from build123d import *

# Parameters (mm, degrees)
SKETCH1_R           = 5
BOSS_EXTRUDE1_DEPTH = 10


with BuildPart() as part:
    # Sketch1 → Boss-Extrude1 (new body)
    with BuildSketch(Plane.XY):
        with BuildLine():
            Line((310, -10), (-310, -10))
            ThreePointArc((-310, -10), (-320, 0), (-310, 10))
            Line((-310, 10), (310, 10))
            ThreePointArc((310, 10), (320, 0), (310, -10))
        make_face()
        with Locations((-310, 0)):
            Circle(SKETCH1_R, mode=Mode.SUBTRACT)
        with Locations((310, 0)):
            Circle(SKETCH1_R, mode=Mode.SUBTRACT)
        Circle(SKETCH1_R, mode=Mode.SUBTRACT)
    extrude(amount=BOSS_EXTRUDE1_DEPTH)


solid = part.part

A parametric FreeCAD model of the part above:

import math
import FreeCAD as App
import Part
import Sketcher

V = App.Vector

doc = App.newDocument("Part")
body = doc.addObject("PartDesign::Body", "Body")

# Sketch on XY plane
sketch1 = body.newObject("Sketcher::SketchObject", "Sketch")
sketch1.AttachmentSupport = (doc.getObject("XY_Plane"), [""])
sketch1.MapMode = "FlatFace"
sketch1.addGeometry([
    Part.LineSegment(V(-310, -10, 0), V(310, -10, 0)),  # 0
    Part.ArcOfCircle(Part.Circle(V(310, 0, 0), V(0, 0, 1), 10), math.radians(-90), math.radians(90)),  # 1
    Part.LineSegment(V(310, 10, 0), V(-310, 10, 0)),  # 2
    Part.ArcOfCircle(Part.Circle(V(-310, 0, 0), V(0, 0, 1), 10), math.radians(90), math.radians(270)),  # 3
    Part.Circle(V(310, 0, 0), V(0, 0, 1), 5),  # 4
    Part.Circle(V(0, 0, 0), V(0, 0, 1), 5),  # 5
    Part.Circle(V(-310, 0, 0), V(0, 0, 1), 5),  # 6
], False)
sketch1.addConstraint([
    Sketcher.Constraint("Tangent", 0, 2, 1, 1),
    Sketcher.Constraint("Tangent", 1, 2, 2, 1),
    Sketcher.Constraint("Tangent", 2, 2, 3, 1),
    Sketcher.Constraint("Tangent", 3, 2, 0, 1),
    Sketcher.Constraint("Horizontal", 0),
    Sketcher.Constraint("Horizontal", 2),
    Sketcher.Constraint("Coincident", 5, 3, -1, 1),
    Sketcher.Constraint("Coincident", 4, 3, 1, 3),
    Sketcher.Constraint("Coincident", 6, 3, 3, 3),
    Sketcher.Constraint("Equal", 4, 5),
    Sketcher.Constraint("Equal", 5, 6),
    Sketcher.Constraint("Symmetric", 1, 3, 3, 3, -1, 1),
    Sketcher.Constraint("Diameter", 4, 10.0),
    Sketcher.Constraint("Radius", 1, 10.0),
    Sketcher.Constraint("DistanceX", 0, 1, 0, 2, 620.0),
])
pad1 = body.newObject("PartDesign::Pad", "Pad")
pad1.Profile = sketch1
pad1.Length = 10

doc.recompute()
